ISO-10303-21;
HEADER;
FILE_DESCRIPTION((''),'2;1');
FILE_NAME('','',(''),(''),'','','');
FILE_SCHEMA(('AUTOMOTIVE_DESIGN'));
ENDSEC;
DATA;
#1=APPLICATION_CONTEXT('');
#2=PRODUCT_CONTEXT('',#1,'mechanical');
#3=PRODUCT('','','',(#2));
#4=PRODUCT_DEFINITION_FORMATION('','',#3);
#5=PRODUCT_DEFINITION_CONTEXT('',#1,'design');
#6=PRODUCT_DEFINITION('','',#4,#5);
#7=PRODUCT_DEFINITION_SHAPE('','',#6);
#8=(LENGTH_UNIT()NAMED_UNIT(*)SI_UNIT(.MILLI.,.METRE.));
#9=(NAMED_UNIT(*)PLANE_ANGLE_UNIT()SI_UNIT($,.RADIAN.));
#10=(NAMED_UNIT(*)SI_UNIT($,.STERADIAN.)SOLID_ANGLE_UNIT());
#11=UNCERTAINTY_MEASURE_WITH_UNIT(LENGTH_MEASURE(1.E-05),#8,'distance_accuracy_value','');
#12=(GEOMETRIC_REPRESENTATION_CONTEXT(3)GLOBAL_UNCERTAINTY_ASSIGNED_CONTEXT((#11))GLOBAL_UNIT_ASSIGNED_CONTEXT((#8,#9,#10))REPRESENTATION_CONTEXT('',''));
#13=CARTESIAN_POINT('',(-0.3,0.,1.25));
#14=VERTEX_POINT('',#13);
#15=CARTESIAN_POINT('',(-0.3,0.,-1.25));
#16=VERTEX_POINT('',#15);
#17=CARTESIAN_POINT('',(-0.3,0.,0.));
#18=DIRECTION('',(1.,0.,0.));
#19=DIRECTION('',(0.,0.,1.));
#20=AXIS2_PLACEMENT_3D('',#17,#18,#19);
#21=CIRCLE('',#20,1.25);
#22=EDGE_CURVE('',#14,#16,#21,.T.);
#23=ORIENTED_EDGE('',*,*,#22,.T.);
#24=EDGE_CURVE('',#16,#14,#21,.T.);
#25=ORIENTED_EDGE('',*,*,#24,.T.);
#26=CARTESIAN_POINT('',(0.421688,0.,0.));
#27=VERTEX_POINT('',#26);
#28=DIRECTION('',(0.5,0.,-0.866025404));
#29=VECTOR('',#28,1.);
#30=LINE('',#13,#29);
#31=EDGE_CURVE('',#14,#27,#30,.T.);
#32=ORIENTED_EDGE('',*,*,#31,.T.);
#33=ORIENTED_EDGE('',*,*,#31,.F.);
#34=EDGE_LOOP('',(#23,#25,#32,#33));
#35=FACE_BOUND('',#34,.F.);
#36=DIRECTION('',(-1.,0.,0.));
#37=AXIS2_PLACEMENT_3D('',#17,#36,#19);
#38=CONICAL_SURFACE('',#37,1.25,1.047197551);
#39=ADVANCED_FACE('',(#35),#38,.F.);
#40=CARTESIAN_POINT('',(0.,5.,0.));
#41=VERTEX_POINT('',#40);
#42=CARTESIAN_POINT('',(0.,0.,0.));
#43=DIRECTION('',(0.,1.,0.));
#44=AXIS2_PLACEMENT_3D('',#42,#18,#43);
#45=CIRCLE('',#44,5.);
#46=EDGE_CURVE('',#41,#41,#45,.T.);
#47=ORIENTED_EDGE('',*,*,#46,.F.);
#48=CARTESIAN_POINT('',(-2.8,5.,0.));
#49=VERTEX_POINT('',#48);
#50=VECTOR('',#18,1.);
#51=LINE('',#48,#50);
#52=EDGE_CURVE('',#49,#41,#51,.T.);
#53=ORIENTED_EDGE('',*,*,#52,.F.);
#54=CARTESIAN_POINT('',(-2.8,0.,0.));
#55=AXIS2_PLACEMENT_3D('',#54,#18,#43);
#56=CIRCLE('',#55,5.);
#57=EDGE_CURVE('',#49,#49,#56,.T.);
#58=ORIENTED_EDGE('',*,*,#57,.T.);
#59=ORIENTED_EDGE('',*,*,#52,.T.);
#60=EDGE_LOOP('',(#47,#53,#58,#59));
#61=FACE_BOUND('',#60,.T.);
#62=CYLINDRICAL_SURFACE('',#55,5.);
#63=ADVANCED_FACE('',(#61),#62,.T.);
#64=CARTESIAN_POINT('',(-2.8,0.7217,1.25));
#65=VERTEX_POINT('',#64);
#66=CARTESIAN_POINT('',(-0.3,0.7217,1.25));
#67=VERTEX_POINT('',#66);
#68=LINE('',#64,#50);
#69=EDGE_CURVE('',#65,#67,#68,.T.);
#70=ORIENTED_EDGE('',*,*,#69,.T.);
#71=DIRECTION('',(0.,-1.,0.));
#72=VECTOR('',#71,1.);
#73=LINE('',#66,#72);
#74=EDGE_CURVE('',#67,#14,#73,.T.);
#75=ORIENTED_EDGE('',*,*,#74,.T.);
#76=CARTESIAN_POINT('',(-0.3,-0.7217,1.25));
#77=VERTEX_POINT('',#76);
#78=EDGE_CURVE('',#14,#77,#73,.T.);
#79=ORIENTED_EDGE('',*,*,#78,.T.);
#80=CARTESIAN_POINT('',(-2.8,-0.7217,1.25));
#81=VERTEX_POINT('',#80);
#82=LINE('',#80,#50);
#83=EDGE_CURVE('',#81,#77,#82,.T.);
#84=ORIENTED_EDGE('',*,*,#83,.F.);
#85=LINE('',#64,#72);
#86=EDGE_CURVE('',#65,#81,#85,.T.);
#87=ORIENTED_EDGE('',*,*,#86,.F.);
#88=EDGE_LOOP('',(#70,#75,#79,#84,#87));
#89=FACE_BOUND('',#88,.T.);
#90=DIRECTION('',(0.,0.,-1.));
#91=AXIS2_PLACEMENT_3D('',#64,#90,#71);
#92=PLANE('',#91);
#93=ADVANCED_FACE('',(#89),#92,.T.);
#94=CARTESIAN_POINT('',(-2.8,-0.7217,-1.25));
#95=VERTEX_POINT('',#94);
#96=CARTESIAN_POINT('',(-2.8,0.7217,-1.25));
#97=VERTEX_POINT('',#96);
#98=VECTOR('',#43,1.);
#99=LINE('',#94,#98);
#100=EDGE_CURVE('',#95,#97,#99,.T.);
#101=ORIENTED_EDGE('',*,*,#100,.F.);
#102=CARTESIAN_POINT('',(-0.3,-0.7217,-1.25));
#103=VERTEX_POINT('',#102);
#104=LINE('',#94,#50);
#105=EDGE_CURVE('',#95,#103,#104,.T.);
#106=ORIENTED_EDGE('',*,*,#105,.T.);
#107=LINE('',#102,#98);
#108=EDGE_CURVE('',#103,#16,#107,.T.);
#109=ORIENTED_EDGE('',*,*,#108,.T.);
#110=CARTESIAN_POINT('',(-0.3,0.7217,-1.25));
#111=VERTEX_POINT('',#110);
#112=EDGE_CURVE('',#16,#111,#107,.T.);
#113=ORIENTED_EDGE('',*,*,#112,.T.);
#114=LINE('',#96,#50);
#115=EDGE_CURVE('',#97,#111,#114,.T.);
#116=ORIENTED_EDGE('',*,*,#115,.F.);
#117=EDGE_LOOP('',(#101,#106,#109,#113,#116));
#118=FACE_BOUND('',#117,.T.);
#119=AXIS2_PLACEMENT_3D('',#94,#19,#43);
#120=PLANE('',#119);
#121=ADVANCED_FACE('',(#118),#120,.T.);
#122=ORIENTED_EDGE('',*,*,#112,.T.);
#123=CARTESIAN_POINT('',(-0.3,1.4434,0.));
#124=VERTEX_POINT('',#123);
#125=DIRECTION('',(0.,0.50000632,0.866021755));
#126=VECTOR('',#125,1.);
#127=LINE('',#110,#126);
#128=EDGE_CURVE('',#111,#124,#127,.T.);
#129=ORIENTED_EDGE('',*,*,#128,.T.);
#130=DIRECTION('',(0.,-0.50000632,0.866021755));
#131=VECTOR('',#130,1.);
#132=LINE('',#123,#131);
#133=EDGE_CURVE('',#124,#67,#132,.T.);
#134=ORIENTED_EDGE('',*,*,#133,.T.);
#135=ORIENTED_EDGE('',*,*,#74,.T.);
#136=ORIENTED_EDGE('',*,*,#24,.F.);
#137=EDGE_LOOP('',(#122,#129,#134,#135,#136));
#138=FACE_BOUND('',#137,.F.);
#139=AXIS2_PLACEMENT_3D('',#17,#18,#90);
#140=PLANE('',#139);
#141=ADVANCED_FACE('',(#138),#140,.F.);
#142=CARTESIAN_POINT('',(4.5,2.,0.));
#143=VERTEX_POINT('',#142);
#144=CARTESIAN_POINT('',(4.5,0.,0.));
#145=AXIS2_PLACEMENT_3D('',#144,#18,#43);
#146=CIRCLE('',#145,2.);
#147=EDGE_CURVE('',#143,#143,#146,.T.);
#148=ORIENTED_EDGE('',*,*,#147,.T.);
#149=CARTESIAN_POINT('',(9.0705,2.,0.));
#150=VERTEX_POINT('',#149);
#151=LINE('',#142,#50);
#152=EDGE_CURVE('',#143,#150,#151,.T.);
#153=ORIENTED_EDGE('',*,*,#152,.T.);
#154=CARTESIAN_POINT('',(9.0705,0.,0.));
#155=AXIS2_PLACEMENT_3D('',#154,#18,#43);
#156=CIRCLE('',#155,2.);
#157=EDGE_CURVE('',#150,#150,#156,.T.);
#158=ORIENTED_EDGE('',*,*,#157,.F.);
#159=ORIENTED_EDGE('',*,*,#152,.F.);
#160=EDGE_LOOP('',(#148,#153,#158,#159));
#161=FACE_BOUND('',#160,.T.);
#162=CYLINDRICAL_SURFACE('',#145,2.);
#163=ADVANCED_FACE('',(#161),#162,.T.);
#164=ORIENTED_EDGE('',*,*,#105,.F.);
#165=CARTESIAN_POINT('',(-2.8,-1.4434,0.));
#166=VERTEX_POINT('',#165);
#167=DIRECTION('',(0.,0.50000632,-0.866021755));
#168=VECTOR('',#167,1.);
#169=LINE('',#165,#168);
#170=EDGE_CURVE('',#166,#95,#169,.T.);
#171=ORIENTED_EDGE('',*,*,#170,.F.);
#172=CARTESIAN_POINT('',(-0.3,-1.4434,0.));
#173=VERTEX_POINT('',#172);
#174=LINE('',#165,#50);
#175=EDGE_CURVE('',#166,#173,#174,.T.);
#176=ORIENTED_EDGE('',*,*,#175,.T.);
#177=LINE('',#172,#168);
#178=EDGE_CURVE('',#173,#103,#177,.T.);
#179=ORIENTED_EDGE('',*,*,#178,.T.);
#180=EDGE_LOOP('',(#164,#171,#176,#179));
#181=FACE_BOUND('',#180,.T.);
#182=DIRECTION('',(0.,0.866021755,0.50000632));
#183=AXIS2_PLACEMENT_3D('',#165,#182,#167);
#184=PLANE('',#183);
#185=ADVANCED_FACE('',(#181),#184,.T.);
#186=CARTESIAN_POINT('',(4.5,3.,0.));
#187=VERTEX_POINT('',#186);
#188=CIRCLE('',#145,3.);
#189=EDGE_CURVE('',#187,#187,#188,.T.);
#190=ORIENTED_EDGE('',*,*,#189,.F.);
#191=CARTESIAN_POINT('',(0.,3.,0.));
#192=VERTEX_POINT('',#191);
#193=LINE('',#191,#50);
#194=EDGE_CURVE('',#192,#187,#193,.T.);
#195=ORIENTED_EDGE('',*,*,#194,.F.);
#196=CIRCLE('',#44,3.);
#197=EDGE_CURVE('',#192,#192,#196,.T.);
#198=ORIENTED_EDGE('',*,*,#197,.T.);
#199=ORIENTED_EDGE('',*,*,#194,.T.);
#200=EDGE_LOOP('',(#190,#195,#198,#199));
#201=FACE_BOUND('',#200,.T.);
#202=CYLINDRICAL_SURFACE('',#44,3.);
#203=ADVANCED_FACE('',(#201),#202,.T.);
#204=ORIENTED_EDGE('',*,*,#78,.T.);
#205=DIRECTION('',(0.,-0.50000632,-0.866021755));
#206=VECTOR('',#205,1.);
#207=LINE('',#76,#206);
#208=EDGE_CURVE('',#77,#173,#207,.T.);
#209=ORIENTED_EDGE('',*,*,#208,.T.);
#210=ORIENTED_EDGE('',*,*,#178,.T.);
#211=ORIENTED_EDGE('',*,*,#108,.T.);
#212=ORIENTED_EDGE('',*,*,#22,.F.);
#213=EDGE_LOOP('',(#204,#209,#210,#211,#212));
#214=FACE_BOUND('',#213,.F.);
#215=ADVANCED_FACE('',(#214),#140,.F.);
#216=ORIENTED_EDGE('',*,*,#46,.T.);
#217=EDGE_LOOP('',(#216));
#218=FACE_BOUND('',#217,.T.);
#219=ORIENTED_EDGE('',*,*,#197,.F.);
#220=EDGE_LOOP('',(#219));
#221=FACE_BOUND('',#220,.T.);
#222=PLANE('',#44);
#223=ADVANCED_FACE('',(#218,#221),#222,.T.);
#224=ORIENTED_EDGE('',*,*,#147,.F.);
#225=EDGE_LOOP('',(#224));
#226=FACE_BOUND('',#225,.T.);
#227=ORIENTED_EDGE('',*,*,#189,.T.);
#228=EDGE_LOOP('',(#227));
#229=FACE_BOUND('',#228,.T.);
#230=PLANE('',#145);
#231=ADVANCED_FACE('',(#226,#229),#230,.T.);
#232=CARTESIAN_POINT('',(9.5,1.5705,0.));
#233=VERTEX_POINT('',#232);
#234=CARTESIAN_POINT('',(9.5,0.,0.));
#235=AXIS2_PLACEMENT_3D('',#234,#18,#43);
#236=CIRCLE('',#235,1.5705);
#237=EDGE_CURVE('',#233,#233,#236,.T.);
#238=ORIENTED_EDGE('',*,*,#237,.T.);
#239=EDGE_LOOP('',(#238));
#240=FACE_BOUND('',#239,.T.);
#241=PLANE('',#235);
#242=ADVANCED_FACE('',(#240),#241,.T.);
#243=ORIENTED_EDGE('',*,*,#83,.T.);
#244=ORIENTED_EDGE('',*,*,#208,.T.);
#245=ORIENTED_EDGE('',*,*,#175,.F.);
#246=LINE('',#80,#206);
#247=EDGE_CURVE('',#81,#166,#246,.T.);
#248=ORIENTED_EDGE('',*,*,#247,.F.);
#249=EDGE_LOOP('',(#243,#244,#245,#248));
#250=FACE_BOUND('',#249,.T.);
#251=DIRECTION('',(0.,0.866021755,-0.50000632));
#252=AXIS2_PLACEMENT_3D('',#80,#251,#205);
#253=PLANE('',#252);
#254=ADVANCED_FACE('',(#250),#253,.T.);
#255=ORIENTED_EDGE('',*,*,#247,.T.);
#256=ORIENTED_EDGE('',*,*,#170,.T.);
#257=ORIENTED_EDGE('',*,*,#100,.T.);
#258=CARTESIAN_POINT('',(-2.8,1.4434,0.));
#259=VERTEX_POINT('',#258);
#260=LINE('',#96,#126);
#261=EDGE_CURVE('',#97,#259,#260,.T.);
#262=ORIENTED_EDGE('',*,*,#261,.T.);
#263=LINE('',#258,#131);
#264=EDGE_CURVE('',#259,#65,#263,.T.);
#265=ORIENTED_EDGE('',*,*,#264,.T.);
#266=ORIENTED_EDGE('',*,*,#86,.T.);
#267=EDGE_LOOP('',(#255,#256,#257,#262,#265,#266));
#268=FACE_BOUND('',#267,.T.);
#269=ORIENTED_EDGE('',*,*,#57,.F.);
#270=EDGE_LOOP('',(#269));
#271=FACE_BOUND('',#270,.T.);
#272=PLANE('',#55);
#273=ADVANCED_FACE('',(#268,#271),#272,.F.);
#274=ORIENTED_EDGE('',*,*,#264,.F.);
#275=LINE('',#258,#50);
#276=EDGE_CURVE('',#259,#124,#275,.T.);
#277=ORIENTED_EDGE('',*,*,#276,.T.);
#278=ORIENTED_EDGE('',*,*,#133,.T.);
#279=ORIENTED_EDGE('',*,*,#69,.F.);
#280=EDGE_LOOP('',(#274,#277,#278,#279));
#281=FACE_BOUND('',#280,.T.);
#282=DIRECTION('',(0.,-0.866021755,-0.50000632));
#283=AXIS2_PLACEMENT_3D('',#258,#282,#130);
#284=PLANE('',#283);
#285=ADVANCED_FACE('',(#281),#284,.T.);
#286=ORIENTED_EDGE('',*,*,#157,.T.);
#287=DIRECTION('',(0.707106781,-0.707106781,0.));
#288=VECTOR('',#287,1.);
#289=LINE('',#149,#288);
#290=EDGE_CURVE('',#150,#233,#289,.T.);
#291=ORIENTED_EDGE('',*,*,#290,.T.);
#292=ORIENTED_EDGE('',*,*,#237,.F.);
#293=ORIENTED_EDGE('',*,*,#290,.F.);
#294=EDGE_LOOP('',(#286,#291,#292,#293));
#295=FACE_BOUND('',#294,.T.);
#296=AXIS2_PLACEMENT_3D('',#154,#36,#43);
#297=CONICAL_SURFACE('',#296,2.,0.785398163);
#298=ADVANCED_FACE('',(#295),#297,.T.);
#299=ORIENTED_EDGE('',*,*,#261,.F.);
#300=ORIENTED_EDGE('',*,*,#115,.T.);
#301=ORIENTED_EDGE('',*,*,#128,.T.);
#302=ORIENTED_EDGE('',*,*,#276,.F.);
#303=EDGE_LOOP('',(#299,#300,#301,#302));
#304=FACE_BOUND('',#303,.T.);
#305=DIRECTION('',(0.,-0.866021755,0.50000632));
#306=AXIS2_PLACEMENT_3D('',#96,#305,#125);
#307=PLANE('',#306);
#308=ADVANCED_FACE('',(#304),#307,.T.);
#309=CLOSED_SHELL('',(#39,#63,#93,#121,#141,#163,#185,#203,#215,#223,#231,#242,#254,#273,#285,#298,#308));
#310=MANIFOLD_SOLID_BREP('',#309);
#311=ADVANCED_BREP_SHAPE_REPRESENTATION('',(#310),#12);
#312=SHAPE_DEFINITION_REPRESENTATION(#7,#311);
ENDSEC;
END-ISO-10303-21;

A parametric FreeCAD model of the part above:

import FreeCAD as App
import Part
import Sketcher
from FreeCAD import Vector
Q = App.Units.Quantity


def add_polygon(sketch, points):
    """Adds a closed chain of lines whose ends are joined by coincident constraints."""
    first, n = sketch.GeometryCount, len(points)
    for a, b in zip(points, points[1:] + points[:1]):
        sketch.addGeometry(Part.LineSegment(App.Vector(*a, 0), App.Vector(*b, 0)), False)
    for i in range(n):
        sketch.addConstraint(Sketcher.Constraint("Coincident", first + i, 2, first + (i + 1) % n, 1))

doc = App.newDocument("Part")
body = doc.addObject("PartDesign::Body", "Body")

# Sketch on XY plane
sketch1 = body.newObject("Sketcher::SketchObject", "Sketch")
sketch1.AttachmentSupport = (doc.getObject("XY_Plane"), [""])
sketch1.MapMode = "FlatFace"
add_polygon(sketch1, [(-2.8, 0), (4.5, 0), (4.5, 3), (0, 3), (0, 5), (-2.8, 5)])  # lines 0-5
sketch1.addConstraint([
    Sketcher.Constraint("Horizontal", 0),
    Sketcher.Constraint("Vertical", 1),
    Sketcher.Constraint("Horizontal", 2),
    Sketcher.Constraint("Vertical", 3),
    Sketcher.Constraint("Horizontal", 4),
    Sketcher.Constraint("Vertical", 5),
    Sketcher.Constraint("PointOnObject", 0, 2, -1),
    Sketcher.Constraint("PointOnObject", 2, 2, -2),
    Sketcher.Constraint("DistanceY", 1, 1, 1, 2, 3.0),
    Sketcher.Constraint("DistanceY", 3, 1, 3, 2, 2.0),
    Sketcher.Constraint("DistanceX", 0, 1, 0, 2, 7.3),
    Sketcher.Constraint("DistanceX", 2, 2, 2, 1, 4.5),
])
revolution = body.newObject("PartDesign::Revolution", "Revolution")
revolution.Profile = sketch1
revolution.ReferenceAxis = (sketch1, ["H_Axis"])
revolution.Angle = 360

# Sketch on YZ plane
sketch2 = body.newObject("Sketcher::SketchObject", "Sketch001")
sketch2.AttachmentSupport = (doc.getObject("YZ_Plane"), [""])
sketch2.MapMode = "FlatFace"
sketch2.AttachmentOffset = App.Placement(Vector(0, 0, -2.8), App.Rotation())
sketch2.addGeometry(Part.Circle(Vector(0, 0, 0), Vector(0, 0, 1), 1.25), False)
sketch2.addConstraint([
    Sketcher.Constraint("Coincident", 0, 3, -1, 1),
    Sketcher.Constraint("Diameter", 0, 2.5),
])
doc.recompute()
hole = body.newObject("PartDesign::Hole", "Hole")
hole.Profile = sketch2
hole.ThreadType = "None"
hole.Diameter = 2.5
hole.DepthType = "Dimension"
hole.Depth = 2.5
hole.DrillPoint = "Angled"
hole.DrillPointAngle = 120
hole.Reversed = True

# Sketch on YZ plane
sketch3 = body.newObject("Sketcher::SketchObject", "Sketch002")
sketch3.AttachmentSupport = (doc.getObject("YZ_Plane"), [""])
sketch3.MapMode = "FlatFace"
sketch3.AttachmentOffset = App.Placement(Vector(0, 0, -2.8), App.Rotation())
add_polygon(sketch3, [(0.7217, 1.25), (-0.7217, 1.25), (-1.4434, 0), (-0.7217, -1.25), (0.7217, -1.25), (1.4434, 0)])  # lines 0-5
sketch3.addConstraint([
    Sketcher.Constraint("Horizontal", 0),
    Sketcher.Constraint("Horizontal", 3),
    Sketcher.Constraint("Symmetric", 0, 2, 3, 2, -1, 1),
    Sketcher.Constraint("Symmetric", 1, 2, 4, 2, -1, 1),
    Sketcher.Constraint("PointOnObject", 1, 2, -1),
    Sketcher.Constraint("Parallel", 2, 5),
    Sketcher.Constraint("Vertical", 0, 2, 2, 2),
    Sketcher.Constraint("Angle", 1, Q("-120.0004 deg")),
    Sketcher.Constraint("DistanceY", 2, 2, 0, 2, 2.5),
    Sketcher.Constraint("DistanceX", 0, 2, 0, 1, 1.4434),
])
pocket1 = body.newObject("PartDesign::Pocket", "Pocket")
pocket1.Profile = sketch3
pocket1.Length = 2.5
pocket1.Reversed = True

# Sketch on XY plane
sketch4 = body.newObject("Sketcher::SketchObject", "Sketch003")
sketch4.AttachmentSupport = (doc.getObject("XY_Plane"), [""])
sketch4.MapMode = "FlatFace"
add_polygon(sketch4, [(4.5, 0), (9.5, 0), (9.5, 1.5705), (9.0705, 2), (4.5, 2)])  # lines 0-4
sketch4.addConstraint([
    Sketcher.Constraint("Horizontal", 0),
    Sketcher.Constraint("Vertical", 1),
    Sketcher.Constraint("Horizontal", 3),
    Sketcher.Constraint("Vertical", 4),
    Sketcher.Constraint("PointOnObject", 0, 2, -1),
    Sketcher.Constraint("DistanceX", 0, 1, 0, 2, 5.0),
    Sketcher.Constraint("DistanceY", 4, 2, 4, 1, 2.0),
    Sketcher.Constraint("Angle", 2, Q("135 deg")),
    Sketcher.Constraint("DistanceX", -1, 1, 0, 2, 9.5),
    Sketcher.Constraint("DistanceX", 3, 2, 3, 1, 4.5705),
])
revolution2 = body.newObject("PartDesign::Revolution", "Revolution001")
revolution2.Profile = sketch4
revolution2.ReferenceAxis = (sketch4, ["H_Axis"])
revolution2.Angle = 360

doc.recompute()
